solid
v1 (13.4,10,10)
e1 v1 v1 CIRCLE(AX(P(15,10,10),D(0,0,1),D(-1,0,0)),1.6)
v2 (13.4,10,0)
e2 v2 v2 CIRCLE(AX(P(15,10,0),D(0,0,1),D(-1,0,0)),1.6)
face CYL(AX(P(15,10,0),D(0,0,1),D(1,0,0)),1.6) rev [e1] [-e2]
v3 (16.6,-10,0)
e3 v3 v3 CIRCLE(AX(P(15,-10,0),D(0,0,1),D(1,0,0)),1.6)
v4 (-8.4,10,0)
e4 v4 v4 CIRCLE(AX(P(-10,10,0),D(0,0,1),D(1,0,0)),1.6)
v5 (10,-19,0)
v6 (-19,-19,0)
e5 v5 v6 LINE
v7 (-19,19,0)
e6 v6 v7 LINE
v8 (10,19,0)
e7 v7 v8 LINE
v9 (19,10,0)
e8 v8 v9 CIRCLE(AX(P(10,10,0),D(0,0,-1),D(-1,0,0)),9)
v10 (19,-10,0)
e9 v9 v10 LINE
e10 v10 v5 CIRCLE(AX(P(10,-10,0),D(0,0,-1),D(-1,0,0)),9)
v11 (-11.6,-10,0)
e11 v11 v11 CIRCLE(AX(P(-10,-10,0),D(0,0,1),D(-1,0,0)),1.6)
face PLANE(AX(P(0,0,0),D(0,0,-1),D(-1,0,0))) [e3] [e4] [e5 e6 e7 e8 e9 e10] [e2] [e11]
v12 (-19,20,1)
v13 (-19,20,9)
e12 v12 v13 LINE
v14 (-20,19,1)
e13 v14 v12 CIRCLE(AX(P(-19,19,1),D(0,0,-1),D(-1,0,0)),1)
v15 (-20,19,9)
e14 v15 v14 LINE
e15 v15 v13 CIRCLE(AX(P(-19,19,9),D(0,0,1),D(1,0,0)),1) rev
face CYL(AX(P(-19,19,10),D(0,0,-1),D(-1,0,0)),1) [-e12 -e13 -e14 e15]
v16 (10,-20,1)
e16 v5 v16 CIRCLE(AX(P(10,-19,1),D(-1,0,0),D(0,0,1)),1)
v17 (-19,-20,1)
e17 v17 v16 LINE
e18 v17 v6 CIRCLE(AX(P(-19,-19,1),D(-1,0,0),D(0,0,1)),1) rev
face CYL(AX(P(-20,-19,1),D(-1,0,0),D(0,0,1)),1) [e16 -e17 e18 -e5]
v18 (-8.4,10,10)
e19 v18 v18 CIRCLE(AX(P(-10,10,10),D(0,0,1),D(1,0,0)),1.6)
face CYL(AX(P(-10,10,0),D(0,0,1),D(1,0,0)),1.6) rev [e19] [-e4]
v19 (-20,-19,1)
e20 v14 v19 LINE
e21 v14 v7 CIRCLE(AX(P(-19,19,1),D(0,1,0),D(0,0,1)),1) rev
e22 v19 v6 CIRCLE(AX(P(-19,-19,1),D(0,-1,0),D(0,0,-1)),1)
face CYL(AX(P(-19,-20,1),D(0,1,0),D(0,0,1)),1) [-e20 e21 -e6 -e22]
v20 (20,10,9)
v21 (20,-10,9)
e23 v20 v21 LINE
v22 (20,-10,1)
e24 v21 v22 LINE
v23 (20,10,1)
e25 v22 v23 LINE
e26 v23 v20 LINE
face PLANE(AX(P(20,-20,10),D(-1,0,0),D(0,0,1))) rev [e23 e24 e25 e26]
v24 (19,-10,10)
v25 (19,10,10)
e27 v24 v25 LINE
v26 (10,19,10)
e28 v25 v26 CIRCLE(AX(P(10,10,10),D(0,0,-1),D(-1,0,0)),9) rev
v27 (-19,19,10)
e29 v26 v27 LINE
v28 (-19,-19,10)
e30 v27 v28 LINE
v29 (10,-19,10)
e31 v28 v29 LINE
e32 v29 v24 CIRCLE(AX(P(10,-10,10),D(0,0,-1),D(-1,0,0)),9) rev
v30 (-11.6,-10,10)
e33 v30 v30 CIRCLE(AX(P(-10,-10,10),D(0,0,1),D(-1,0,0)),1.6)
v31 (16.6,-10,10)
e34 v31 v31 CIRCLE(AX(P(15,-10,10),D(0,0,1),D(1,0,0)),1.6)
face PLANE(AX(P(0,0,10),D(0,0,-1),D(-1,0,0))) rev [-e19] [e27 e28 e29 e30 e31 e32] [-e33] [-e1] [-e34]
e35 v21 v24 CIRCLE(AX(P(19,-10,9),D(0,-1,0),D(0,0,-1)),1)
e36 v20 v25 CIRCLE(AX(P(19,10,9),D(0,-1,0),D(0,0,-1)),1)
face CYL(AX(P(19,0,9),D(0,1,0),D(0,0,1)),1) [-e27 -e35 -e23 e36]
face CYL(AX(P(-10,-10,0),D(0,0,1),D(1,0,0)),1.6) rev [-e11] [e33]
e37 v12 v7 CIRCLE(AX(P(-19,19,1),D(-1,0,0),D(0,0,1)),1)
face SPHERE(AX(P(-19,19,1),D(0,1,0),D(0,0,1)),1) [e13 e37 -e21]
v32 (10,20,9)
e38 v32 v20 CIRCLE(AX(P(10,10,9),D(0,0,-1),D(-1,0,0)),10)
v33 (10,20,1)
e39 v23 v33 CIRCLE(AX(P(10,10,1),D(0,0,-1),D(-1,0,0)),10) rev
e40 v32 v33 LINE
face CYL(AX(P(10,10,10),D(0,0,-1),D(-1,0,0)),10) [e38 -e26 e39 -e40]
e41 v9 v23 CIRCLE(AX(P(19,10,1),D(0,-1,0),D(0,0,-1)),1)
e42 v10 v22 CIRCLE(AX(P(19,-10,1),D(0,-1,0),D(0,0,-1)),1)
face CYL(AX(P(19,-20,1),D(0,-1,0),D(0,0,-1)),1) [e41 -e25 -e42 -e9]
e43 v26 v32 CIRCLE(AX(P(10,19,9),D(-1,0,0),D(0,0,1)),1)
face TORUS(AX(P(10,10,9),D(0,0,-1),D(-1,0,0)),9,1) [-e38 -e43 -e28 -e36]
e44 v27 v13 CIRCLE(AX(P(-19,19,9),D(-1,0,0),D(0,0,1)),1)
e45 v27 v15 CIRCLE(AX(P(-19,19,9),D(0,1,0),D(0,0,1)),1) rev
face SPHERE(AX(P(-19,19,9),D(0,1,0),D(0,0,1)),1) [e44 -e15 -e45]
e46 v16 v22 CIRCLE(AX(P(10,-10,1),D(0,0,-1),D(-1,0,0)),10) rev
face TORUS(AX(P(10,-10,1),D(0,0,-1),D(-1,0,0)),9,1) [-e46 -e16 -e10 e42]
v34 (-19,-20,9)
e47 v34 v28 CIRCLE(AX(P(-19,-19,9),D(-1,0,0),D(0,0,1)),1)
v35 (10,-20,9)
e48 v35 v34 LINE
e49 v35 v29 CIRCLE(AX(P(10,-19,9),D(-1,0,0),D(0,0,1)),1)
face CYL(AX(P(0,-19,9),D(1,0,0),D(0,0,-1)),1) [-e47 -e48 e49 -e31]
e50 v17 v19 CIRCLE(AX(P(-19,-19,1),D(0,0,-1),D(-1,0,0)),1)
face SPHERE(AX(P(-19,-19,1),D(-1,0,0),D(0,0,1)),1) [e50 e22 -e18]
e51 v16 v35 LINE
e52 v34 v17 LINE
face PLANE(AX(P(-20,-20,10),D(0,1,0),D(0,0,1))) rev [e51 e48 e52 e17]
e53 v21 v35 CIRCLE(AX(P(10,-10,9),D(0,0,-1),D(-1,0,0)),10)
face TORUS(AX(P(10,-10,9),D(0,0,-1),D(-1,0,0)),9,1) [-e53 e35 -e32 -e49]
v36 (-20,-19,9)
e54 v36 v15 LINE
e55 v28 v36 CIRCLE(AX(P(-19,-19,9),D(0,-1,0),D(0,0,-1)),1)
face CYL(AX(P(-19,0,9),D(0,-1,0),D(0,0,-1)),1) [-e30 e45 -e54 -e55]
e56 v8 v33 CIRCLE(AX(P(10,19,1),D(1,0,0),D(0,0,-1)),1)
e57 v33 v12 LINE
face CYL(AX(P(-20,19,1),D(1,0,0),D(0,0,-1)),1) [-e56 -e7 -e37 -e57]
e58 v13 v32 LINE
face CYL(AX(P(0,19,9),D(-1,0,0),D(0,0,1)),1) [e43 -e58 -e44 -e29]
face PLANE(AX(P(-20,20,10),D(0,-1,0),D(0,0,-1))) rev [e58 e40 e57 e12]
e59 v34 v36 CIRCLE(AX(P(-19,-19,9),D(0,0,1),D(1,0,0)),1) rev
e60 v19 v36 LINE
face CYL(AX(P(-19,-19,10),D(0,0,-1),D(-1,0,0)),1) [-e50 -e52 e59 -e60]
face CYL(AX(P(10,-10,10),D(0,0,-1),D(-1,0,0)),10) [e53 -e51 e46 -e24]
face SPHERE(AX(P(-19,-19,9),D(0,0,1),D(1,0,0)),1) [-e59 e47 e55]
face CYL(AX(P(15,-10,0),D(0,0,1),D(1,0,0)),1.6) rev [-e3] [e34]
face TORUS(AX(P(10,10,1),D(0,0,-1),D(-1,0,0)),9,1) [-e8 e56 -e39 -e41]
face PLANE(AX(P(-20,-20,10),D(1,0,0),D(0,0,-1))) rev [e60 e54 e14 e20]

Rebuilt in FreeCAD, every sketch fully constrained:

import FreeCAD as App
import Part
import Sketcher
from FreeCAD import Vector


def edges_at(feature, points):
    """Names of the edges that pass closest to the given points."""
    edges = feature.Shape.Edges
    near = lambda p: min(range(len(edges)), key=lambda i: edges[i].distToShape(Part.Vertex(*p))[0])
    return sorted({f"Edge{near(p) + 1}" for p in points})

doc = App.newDocument("Part")
body = doc.addObject("PartDesign::Body", "Body")

# Sketch on XY plane
sketch1 = doc.addObject("Sketcher::SketchObject", "Sketch")
body.addObject(sketch1)
sketch1.AttachmentSupport = (doc.XY_Plane, [""])
sketch1.MapMode = "FlatFace"
sketch1.addGeometry([
    Part.LineSegment(Vector(-20, 20, 0), Vector(-20, -20, 0)),
    Part.LineSegment(Vector(-20, -20, 0), Vector(20, -20, 0)),
    Part.LineSegment(Vector(20, -20, 0), Vector(20, 20, 0)),
    Part.LineSegment(Vector(20, 20, 0), Vector(-20, 20, 0)),
], False)
sketch1.addConstraint([
    Sketcher.Constraint("Coincident", 0, 2, 1, 1),
    Sketcher.Constraint("Coincident", 1, 2, 2, 1),
    Sketcher.Constraint("Coincident", 2, 2, 3, 1),
    Sketcher.Constraint("Coincident", 3, 2, 0, 1),
    Sketcher.Constraint("Vertical", 0),
    Sketcher.Constraint("Horizontal", 1),
    Sketcher.Constraint("Vertical", 2),
    Sketcher.Constraint("Horizontal", 3),
    Sketcher.Constraint("Symmetric", 0, 2, 2, 2, -1, 1),
    Sketcher.Constraint("Equal", 3, 0),
    Sketcher.Constraint("DistanceX", 1, 1, 1, 2, 40.0),
])
pad1 = doc.addObject("PartDesign::Pad", "Pad")
body.addObject(pad1)
pad1.Profile = sketch1
pad1.Length = 10

# Sketch on XY plane
sketch2 = doc.addObject("Sketcher::SketchObject", "Sketch001")
body.addObject(sketch2)
sketch2.AttachmentSupport = (doc.XY_Plane, [""])
sketch2.MapMode = "FlatFace"
sketch2.AttachmentOffset = App.Placement(Vector(0, 0, 10), App.Rotation())
sketch2.addGeometry([
    Part.Circle(Vector(-10, 10, 0), Vector(0, 0, 1), 1.6),
    Part.Circle(Vector(15, 10, 0), Vector(0, 0, 1), 1.6),
    Part.Circle(Vector(15, -10, 0), Vector(0, 0, 1), 1.6),
    Part.Circle(Vector(-10, -10, 0), Vector(0, 0, 1), 1.6),
], False)
sketch2.addConstraint([
    Sketcher.Constraint("Equal", 0, 1),
    Sketcher.Constraint("Equal", 1, 2),
    Sketcher.Constraint("Equal", 2, 3),
    Sketcher.Constraint("Symmetric", 1, 3, 2, 3, -1),
    Sketcher.Constraint("Symmetric", 0, 3, 3, 3, -1),
    Sketcher.Constraint("Horizontal", 0, 3, 1, 3),
    Sketcher.Constraint("Diameter", 0, 3.2),
    Sketcher.Constraint("DistanceX", 0, 3, -1, 1, 10.0),
    Sketcher.Constraint("DistanceY", -1, 1, 0, 3, 10.0),
    Sketcher.Constraint("DistanceX", -1, 1, 1, 3, 15.0),
])
pocket1 = doc.addObject("PartDesign::Pocket", "Pocket")
body.addObject(pocket1)
pocket1.Profile = sketch2
pocket1.Type = "ThroughAll"
doc.recompute()

fillet = doc.addObject("PartDesign::Fillet", "Fillet")
body.addObject(fillet)
fillet.Base = (pocket1, edges_at(pocket1, [(20, -20, 5), (20, 20, 5)]))
fillet.Radius = 10
doc.recompute()

fillet2 = doc.addObject("PartDesign::Fillet", "Fillet001")
body.addObject(fillet2)
fillet2.Base = (fillet, edges_at(fillet, [
    (-20, 0, 10),
    (-5, -20, 10),
    (20, 0, 0),
    (20, 0, 10),
    (-5, 20, 0),
    (17.071, 17.071, 0),
    (17.071, -17.071, 0),
    (-5, 20, 10),
    (17.071, 17.071, 10),
    (17.071, -17.071, 10),
    (-5, -20, 0),
    (-20, 0, 0),
    (-20, -20, 5),
    (-20, 20, 5),
]))
fillet2.Radius = 1

doc.recompute()
